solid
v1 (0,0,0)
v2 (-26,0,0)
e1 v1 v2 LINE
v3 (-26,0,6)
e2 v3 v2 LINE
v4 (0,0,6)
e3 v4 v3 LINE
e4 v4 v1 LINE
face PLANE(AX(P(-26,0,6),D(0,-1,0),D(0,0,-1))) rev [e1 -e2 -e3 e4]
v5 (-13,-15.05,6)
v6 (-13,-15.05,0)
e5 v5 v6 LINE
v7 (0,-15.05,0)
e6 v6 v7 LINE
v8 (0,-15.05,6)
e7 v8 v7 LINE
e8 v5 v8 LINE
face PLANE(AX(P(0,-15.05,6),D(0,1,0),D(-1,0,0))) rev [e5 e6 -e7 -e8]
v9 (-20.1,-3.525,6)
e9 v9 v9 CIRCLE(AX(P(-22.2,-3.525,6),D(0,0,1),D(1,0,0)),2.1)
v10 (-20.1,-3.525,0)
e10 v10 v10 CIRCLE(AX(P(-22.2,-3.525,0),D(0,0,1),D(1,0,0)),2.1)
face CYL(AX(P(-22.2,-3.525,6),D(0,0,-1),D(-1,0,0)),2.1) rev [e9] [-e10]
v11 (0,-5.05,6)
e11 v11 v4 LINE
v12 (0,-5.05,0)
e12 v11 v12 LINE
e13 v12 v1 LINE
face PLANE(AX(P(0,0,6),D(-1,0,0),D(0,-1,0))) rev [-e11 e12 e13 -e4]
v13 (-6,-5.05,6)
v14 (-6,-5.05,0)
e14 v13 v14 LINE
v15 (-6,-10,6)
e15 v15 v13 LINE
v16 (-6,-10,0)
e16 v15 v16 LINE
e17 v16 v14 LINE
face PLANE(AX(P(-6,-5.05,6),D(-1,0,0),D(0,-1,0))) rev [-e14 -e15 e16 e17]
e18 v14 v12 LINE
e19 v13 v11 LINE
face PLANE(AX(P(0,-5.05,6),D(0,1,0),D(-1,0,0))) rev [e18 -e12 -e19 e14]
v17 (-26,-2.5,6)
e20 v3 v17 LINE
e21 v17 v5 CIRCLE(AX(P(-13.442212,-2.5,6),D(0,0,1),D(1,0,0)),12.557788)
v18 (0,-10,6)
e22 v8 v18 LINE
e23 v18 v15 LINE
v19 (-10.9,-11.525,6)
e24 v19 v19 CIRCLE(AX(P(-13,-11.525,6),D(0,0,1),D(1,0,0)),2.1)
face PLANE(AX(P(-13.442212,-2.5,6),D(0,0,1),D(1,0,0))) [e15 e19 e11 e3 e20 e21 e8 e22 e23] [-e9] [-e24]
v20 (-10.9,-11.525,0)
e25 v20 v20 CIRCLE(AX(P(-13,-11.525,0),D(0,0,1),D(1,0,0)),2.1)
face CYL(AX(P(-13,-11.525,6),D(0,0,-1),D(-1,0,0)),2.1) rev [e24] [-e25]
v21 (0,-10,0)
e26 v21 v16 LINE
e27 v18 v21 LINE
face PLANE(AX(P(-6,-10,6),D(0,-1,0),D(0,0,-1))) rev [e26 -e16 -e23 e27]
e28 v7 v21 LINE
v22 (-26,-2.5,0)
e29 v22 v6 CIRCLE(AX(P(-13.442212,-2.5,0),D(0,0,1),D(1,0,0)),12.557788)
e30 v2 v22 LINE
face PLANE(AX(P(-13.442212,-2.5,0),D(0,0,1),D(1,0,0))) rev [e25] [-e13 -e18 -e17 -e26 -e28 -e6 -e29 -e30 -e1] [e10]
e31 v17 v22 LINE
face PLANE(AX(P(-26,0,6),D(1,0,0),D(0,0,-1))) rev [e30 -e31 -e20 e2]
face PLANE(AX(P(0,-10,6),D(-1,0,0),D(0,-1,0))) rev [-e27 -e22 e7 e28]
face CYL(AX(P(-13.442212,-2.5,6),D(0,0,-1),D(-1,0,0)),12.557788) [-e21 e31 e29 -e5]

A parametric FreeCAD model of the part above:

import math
import FreeCAD as App
import Part
import Sketcher
from FreeCAD import Vector
Q = App.Units.Quantity

doc = App.newDocument("Part")
params = doc.addObject("Spreadsheet::Sheet", "Params")
for row, (alias, value) in enumerate([
    ("sketch1_diameter", "4.2 mm"),
    ("sketch1_width", "26 mm"),
    ("sketch1_width2", "13 mm"),
    ("sketch1_width3", "6 mm"),
    ("sketch1_height", "2.5 mm"),
    ("pad1_length", "6 mm"),
], start=1):
    params.set(f"A{row}", alias)
    params.set(f"B{row}", "=" + value)
    params.setAlias(f"B{row}", alias)

body = doc.addObject("PartDesign::Body", "Body")

# Sketch on XY plane
sketch1 = body.newObject("Sketcher::SketchObject", "Sketch")
sketch1.AttachmentSupport = (doc.getObject("XY_Plane"), [""])
sketch1.MapMode = "FlatFace"
sketch1.addGeometry([
    Part.LineSegment(Vector(0, -5, 0), Vector(0, 0, 0)),  # 0
    Part.LineSegment(Vector(0, 0, 0), Vector(-26, 0, 0)),  # 1
    Part.LineSegment(Vector(-26, 0, 0), Vector(-26, -2.5, 0)),  # 2
    Part.ArcOfCircle(Part.Circle(Vector(-13.4, -2.5, 0), Vector(0, 0, 1), 12.6), math.radians(180), math.radians(272)),  # 3
    Part.LineSegment(Vector(-13, -15.1, 0), Vector(0, -15.1, 0)),  # 4
    Part.LineSegment(Vector(0, -15.1, 0), Vector(0, -10, 0)),  # 5
    Part.LineSegment(Vector(0, -10, 0), Vector(-6, -10, 0)),  # 6
    Part.LineSegment(Vector(-6, -10, 0), Vector(-6, -5, 0)),  # 7
    Part.LineSegment(Vector(-6, -5, 0), Vector(0, -5, 0)),  # 8
    Part.Circle(Vector(-13, -11.5, 0), Vector(0, 0, 1), 2.1),  # 9
    Part.Circle(Vector(-22.2, -3.5, 0), Vector(0, 0, 1), 2.1),  # 10
], False)
sketch1.addConstraint([
    Sketcher.Constraint("Coincident", 0, 2, 1, 1),
    Sketcher.Constraint("Coincident", 1, 2, 2, 1),
    Sketcher.Constraint("Tangent", 2, 2, 3, 1),
    Sketcher.Constraint("Coincident", 3, 2, 4, 1),
    Sketcher.Constraint("Coincident", 4, 2, 5, 1),
    Sketcher.Constraint("Coincident", 5, 2, 6, 1),
    Sketcher.Constraint("Coincident", 6, 2, 7, 1),
    Sketcher.Constraint("Coincident", 7, 2, 8, 1),
    Sketcher.Constraint("Coincident", 8, 2, 0, 1),
    Sketcher.Constraint("Vertical", 0),
    Sketcher.Constraint("Horizontal", 1),
    Sketcher.Constraint("Vertical", 2),
    Sketcher.Constraint("Horizontal", 4),
    Sketcher.Constraint("Vertical", 5),
    Sketcher.Constraint("Horizontal", 6),
    Sketcher.Constraint("Vertical", 7),
    Sketcher.Constraint("Horizontal", 8),
    Sketcher.Constraint("Coincident", 0, 2, -1, 1),
    Sketcher.Constraint("Equal", 9, 10),
    Sketcher.Constraint("PointOnObject", 4, 2, -2),
    Sketcher.Constraint("Vertical", 9, 3, 3, 2),
    Sketcher.Constraint("Equal", 0, 5),
    Sketcher.Constraint("Diameter", 9, Q("4.2 mm")),
    Sketcher.Constraint("DistanceX", 1, 2, 1, 1, Q("26 mm")),
    Sketcher.Constraint("DistanceX", 4, 1, 4, 2, Q("13 mm")),
    Sketcher.Constraint("DistanceX", 6, 2, 6, 1, Q("6 mm")),
    Sketcher.Constraint("DistanceY", 2, 2, 2, 1, Q("2.5 mm")),
    Sketcher.Constraint("DistanceY", 5, 2, -1, 1, Q("10 mm")),
    Sketcher.Constraint("DistanceY", 9, 3, 10, 3, Q("8 mm")),
    Sketcher.Constraint("DistanceY", 0, 1, 0, 2, Q("5.05 mm")),
    Sketcher.Constraint("DistanceX", 10, 3, -1, 1, Q("22.2 mm")),
    Sketcher.Constraint("DistanceY", 9, 3, -1, 1, Q("11.525 mm")),
])
sketch1.setExpression("Constraints[22]", "Params.sketch1_diameter")
sketch1.setExpression("Constraints[23]", "Params.sketch1_width")
sketch1.setExpression("Constraints[24]", "Params.sketch1_width2")
sketch1.setExpression("Constraints[25]", "Params.sketch1_width3")
sketch1.setExpression("Constraints[26]", "Params.sketch1_height")
pad1 = body.newObject("PartDesign::Pad", "Pad")
pad1.Profile = sketch1
pad1.setExpression("Length", "Params.pad1_length")

doc.recompute()
